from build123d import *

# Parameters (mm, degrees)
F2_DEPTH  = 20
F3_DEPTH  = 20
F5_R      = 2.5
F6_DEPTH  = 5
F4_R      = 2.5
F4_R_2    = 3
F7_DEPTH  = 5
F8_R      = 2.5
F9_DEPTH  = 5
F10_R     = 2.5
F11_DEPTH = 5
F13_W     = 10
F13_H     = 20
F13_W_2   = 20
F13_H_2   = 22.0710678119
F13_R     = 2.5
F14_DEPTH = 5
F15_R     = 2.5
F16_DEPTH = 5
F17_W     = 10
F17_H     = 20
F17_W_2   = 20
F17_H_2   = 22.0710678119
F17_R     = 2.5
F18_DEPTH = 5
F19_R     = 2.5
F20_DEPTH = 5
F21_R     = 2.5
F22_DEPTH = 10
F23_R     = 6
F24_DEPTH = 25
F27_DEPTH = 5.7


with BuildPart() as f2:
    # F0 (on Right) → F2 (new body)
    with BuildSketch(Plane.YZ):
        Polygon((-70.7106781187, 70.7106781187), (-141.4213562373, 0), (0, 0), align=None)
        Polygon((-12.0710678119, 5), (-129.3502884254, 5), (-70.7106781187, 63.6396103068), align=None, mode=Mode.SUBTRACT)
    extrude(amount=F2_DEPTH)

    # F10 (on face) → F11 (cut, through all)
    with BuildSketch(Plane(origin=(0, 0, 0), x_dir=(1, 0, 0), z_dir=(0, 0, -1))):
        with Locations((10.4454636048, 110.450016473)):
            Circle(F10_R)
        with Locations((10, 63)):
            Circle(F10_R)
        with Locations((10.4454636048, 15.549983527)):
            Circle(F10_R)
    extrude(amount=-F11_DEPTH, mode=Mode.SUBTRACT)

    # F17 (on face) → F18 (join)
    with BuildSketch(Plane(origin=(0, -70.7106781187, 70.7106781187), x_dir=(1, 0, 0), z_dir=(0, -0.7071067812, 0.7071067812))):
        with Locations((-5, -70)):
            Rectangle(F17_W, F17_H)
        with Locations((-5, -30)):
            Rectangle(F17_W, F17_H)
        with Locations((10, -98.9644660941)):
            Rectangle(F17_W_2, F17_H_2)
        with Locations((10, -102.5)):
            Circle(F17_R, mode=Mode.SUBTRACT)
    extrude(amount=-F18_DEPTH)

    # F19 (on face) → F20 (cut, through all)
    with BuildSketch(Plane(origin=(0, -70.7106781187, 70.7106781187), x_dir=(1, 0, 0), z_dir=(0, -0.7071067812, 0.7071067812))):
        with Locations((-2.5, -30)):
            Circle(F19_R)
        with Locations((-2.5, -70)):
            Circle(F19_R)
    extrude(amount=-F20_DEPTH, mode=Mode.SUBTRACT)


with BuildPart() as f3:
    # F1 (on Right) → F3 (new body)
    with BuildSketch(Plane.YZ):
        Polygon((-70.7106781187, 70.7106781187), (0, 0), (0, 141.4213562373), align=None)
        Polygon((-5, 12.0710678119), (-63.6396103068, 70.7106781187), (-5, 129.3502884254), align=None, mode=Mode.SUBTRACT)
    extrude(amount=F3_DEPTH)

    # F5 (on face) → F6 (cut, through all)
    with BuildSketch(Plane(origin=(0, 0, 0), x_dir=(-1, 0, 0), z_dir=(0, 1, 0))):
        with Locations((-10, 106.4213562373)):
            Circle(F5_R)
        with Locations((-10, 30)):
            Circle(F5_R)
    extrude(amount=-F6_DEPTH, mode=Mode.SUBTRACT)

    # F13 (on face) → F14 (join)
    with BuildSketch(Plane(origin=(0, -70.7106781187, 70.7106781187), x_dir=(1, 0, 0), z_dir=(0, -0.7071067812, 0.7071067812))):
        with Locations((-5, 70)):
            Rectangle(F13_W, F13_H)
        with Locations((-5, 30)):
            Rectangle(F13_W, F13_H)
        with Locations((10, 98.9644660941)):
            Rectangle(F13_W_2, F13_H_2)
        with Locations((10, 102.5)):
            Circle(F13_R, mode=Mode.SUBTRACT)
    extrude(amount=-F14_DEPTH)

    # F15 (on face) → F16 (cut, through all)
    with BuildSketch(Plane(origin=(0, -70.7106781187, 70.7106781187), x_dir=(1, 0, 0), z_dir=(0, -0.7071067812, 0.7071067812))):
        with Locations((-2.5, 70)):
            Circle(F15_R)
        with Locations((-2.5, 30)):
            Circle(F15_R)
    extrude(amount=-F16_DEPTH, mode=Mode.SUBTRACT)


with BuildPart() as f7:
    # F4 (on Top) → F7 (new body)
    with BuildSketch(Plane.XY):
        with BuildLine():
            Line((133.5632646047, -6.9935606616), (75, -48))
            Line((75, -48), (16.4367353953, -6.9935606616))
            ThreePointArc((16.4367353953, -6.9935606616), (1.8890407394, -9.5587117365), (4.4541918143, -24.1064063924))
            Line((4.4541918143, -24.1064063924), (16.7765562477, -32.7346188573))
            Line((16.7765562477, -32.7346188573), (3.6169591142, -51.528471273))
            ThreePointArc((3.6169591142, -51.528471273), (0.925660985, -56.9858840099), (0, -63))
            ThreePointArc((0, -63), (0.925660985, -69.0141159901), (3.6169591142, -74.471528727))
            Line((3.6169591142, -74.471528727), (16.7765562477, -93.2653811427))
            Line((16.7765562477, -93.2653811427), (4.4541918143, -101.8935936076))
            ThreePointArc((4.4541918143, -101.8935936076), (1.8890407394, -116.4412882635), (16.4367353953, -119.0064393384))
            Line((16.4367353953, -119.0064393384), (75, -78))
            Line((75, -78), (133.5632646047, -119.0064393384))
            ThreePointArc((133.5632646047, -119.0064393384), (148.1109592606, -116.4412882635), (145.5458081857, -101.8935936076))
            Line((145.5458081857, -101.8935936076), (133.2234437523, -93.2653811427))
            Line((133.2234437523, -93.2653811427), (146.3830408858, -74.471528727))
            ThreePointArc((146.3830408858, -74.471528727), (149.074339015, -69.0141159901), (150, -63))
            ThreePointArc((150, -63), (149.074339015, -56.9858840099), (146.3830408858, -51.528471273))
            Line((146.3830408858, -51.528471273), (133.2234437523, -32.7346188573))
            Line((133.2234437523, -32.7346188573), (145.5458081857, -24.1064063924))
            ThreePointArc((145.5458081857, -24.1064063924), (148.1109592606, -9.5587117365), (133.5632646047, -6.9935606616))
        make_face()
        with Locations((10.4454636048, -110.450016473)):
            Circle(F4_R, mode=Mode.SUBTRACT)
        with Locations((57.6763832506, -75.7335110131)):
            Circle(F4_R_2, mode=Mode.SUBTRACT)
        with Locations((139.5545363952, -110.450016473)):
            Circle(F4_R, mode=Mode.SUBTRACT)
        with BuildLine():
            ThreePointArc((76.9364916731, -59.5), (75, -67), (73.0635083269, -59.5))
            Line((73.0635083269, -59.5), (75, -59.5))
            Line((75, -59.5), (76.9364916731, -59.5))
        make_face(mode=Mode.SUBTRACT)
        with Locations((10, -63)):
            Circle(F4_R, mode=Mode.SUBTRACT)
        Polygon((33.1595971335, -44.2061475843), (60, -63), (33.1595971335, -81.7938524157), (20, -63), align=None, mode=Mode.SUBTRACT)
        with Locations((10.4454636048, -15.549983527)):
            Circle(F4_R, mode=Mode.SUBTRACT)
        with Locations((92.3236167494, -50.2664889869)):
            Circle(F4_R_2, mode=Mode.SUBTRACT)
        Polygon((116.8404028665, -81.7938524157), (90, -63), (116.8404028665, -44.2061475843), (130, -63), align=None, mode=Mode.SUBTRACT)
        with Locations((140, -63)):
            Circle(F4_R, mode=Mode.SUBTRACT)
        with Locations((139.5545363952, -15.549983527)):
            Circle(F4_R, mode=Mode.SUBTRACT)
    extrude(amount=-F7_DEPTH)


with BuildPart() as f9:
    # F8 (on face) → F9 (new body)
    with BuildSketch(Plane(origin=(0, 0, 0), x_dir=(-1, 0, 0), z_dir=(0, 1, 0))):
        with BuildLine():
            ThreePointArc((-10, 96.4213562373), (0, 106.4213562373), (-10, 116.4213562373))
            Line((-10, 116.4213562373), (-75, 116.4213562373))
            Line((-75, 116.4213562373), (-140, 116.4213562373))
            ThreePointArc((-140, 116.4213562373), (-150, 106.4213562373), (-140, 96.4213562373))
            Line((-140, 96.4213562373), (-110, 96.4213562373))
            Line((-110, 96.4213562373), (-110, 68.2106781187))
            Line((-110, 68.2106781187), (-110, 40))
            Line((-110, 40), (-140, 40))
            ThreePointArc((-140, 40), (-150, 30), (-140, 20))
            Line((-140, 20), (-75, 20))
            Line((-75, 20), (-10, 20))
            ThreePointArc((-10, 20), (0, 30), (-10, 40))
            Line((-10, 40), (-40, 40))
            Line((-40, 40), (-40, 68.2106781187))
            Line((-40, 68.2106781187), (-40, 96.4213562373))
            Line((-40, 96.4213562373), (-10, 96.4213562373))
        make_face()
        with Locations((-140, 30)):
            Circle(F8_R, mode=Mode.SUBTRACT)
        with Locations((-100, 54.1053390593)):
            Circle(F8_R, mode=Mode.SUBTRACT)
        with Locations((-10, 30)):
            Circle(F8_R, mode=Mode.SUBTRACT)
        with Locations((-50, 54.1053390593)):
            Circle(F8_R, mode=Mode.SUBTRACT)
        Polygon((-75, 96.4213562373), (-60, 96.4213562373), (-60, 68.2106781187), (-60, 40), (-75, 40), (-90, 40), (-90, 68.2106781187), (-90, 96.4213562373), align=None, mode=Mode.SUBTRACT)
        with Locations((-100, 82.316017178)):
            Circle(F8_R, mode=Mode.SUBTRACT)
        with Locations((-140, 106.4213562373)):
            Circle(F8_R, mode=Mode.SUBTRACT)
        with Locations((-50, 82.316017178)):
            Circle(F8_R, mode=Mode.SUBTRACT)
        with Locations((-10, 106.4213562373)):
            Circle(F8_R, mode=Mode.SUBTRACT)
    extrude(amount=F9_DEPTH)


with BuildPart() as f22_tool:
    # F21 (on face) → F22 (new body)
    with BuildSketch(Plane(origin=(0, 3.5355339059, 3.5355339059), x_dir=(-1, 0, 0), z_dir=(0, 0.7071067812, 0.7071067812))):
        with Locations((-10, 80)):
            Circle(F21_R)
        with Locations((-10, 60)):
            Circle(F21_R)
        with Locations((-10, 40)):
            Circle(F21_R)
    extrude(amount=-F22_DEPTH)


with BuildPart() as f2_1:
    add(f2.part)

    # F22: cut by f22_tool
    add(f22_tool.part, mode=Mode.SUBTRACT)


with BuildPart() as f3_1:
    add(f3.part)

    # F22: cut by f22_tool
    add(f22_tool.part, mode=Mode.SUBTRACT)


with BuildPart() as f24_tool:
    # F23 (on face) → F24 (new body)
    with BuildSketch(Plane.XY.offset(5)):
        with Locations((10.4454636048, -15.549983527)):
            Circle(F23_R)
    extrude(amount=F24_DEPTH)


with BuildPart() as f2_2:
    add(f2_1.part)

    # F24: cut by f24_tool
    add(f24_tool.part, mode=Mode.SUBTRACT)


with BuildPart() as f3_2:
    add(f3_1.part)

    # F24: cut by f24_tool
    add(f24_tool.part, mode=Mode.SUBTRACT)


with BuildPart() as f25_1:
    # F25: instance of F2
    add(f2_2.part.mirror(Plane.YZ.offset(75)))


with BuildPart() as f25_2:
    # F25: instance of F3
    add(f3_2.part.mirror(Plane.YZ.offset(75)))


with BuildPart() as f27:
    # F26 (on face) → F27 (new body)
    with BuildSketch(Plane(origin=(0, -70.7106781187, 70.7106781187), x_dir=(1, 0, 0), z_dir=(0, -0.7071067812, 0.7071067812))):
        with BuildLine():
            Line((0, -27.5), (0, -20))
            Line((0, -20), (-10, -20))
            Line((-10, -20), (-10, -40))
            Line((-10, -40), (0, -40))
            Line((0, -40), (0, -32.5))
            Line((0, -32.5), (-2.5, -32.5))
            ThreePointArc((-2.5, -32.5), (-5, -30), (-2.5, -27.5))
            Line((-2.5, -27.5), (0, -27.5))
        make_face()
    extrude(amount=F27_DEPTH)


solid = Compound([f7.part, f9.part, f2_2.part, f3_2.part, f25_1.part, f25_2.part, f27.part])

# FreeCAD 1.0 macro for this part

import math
import FreeCAD as App
import Part
import Sketcher
Q = App.Units.Quantity


def add_polygon(sketch, points):
    """Adds a closed chain of lines whose ends are joined by coincident constraints."""
    first, n = sketch.GeometryCount, len(points)
    for a, b in zip(points, points[1:] + points[:1]):
        sketch.addGeometry(Part.LineSegment(App.Vector(*a, 0), App.Vector(*b, 0)), False)
    for i in range(n):
        sketch.addConstraint(Sketcher.Constraint("Coincident", first + i, 2, first + (i + 1) % n, 1))

doc = App.newDocument("Part")
body = doc.addObject("PartDesign::Body", "Body")

# Sketch on YZ plane
sketch1 = body.newObject("Sketcher::SketchObject", "Sketch")
sketch1.AttachmentSupport = (doc.getObject("YZ_Plane"), [""])
sketch1.MapMode = "FlatFace"
add_polygon(sketch1, [(-71, 71), (-141, 0), (0, 0)])  # lines 0-2
add_polygon(sketch1, [(-71, 64), (-12, 5), (-129, 5)])  # lines 3-5
sketch1.addConstraint([
    Sketcher.Constraint("Horizontal", 1),
    Sketcher.Constraint("Horizontal", 4),
    Sketcher.Constraint("Coincident", 1, 2, -1, 1),
    Sketcher.Constraint("Perpendicular", 0, 2),
    Sketcher.Constraint("Parallel", 2, 3),
    Sketcher.Constraint("Perpendicular", 3, 5),
    Sketcher.Constraint("Vertical", 2, 2, 5, 2),
    Sketcher.Constraint("Equal", 0, 2),
    Sketcher.Constraint("Distance", 0, Q("100 mm")),
    Sketcher.Constraint("DistanceY", -1, 1, 3, 2, Q("5 mm")),
    Sketcher.Constraint("DistanceX", 4, 2, 4, 1, Q("117.279221 mm")),
])
pad1 = body.newObject("PartDesign::Pad", "Pad")
pad1.Profile = sketch1
pad1.Length = 20

# Sketch on XY plane
sketch2 = body.newObject("Sketcher::SketchObject", "Sketch001")
sketch2.AttachmentSupport = (doc.getObject("XY_Plane"), [""])
sketch2.MapMode = "FlatFace"
sketch2.addGeometry([
    Part.Circle(App.Vector(10.4, -110.5, 0), App.Vector(0, 0, 1), 2.5),
    Part.Circle(App.Vector(10, -63, 0), App.Vector(0, 0, 1), 2.5),
    Part.Circle(App.Vector(10.4, -15.5, 0), App.Vector(0, 0, 1), 2.5),
], False)
sketch2.addConstraint([
    Sketcher.Constraint("Equal", 0, 1),
    Sketcher.Constraint("Equal", 1, 2),
    Sketcher.Constraint("Vertical", 0, 3, 2, 3),
    Sketcher.Constraint("Diameter", 0, Q("5 mm")),
    Sketcher.Constraint("DistanceX", -1, 1, 1, 3, Q("10 mm")),
    Sketcher.Constraint("DistanceY", 1, 3, -1, 1, Q("63 mm")),
    Sketcher.Constraint("DistanceX", -1, 1, 0, 3, Q("10.445464 mm")),
    Sketcher.Constraint("DistanceY", 0, 3, -1, 1, Q("110.450016 mm")),
    Sketcher.Constraint("DistanceY", 2, 3, -1, 1, Q("15.549984 mm")),
])
pocket1 = body.newObject("PartDesign::Pocket", "Pocket")
pocket1.Profile = sketch2
pocket1.Length = 5
pocket1.Reversed = True

# Sketch on an angled plane
sketch3 = body.newObject("Sketcher::SketchObject", "Sketch002")
sketch3.Placement = App.Placement(App.Vector(0, -70.710678, 70.710678), App.Rotation(App.Vector(1, 0, 0), App.Vector(0, 0.707106781, 0.707106781), App.Vector(0, -0.707106781, 0.707106781), "ZXY"))
add_polygon(sketch3, [(-10, -60), (-10, -80), (0, -80), (0, -60)])  # lines 0-3
add_polygon(sketch3, [(-10, -20), (-10, -40), (0, -40), (0, -20)])  # lines 4-7
add_polygon(sketch3, [(0, -87.9), (0, -110), (20, -110), (20, -87.9)])  # lines 8-11
sketch3.addGeometry(Part.Circle(App.Vector(10, -102.5, 0), App.Vector(0, 0, 1), 2.5), False)  # 12
sketch3.addConstraint([
    Sketcher.Constraint("Vertical", 0),
    Sketcher.Constraint("Horizontal", 1),
    Sketcher.Constraint("Vertical", 2),
    Sketcher.Constraint("Horizontal", 3),
    Sketcher.Constraint("Vertical", 4),
    Sketcher.Constraint("Horizontal", 5),
    Sketcher.Constraint("Vertical", 6),
    Sketcher.Constraint("Horizontal", 7),
    Sketcher.Constraint("Vertical", 8),
    Sketcher.Constraint("Horizontal", 9),
    Sketcher.Constraint("Vertical", 10),
    Sketcher.Constraint("Horizontal", 11),
    Sketcher.Constraint("PointOnObject", 1, 2, -2),
    Sketcher.Constraint("PointOnObject", 5, 2, -2),
    Sketcher.Constraint("PointOnObject", 8, 2, -2),
    Sketcher.Constraint("Vertical", 3, 2, 4, 2),
    Sketcher.Constraint("Equal", 11, 0),
    Sketcher.Constraint("Equal", 2, 4),
    Sketcher.Constraint("Diameter", 12, Q("5 mm")),
    Sketcher.Constraint("DistanceX", 1, 1, 1, 2, Q("10 mm")),
    Sketcher.Constraint("DistanceX", 9, 1, 9, 2, Q("20 mm")),
    Sketcher.Constraint("DistanceX", -1, 1, 12, 3, Q("10 mm")),
    Sketcher.Constraint("DistanceY", 0, 2, -1, 1, Q("80 mm")),
    Sketcher.Constraint("DistanceY", 4, 2, -1, 1, Q("40 mm")),
    Sketcher.Constraint("DistanceY", 8, 2, -1, 1, Q("110 mm")),
    Sketcher.Constraint("DistanceY", 12, 3, -1, 1, Q("102.5 mm")),
    Sketcher.Constraint("DistanceY", 8, 2, 8, 1, Q("22.071068 mm")),
])
pad2 = body.newObject("PartDesign::Pad", "Pad001")
pad2.Profile = sketch3
pad2.Length = 5
pad2.Reversed = True

# Sketch on an angled plane
sketch4 = body.newObject("Sketcher::SketchObject", "Sketch003")
sketch4.Placement = App.Placement(App.Vector(0, -70.710678, 70.710678), App.Rotation(App.Vector(1, 0, 0), App.Vector(0, 0.707106781, 0.707106781), App.Vector(0, -0.707106781, 0.707106781), "ZXY"))
sketch4.addGeometry([
    Part.Circle(App.Vector(-2.5, -30, 0), App.Vector(0, 0, 1), 2.5),
    Part.Circle(App.Vector(-2.5, -70, 0), App.Vector(0, 0, 1), 2.5),
], False)
sketch4.addConstraint([
    Sketcher.Constraint("Equal", 0, 1),
    Sketcher.Constraint("Vertical", 0, 3, 1, 3),
    Sketcher.Constraint("Diameter", 0, Q("5 mm")),
    Sketcher.Constraint("DistanceY", 0, 3, -1, 1, Q("30 mm")),
    Sketcher.Constraint("DistanceY", 1, 3, -1, 1, Q("70 mm")),
    Sketcher.Constraint("DistanceX", 0, 3, -1, 1, Q("2.5 mm")),
])
pocket2 = body.newObject("PartDesign::Pocket", "Pocket001")
pocket2.Profile = sketch4
pocket2.Type = "ThroughAll"
body2 = doc.addObject("PartDesign::Body", "Body001")

# Sketch on YZ plane
sketch5 = body2.newObject("Sketcher::SketchObject", "Sketch004")
sketch5.AttachmentSupport = (doc.getObject("YZ_Plane001"), [""])
sketch5.MapMode = "FlatFace"
add_polygon(sketch5, [(-71, 71), (0, 0), (0, 141)])  # lines 0-2
add_polygon(sketch5, [(-5, 129), (-5, 12), (-64, 71)])  # lines 3-5
sketch5.addConstraint([
    Sketcher.Constraint("Vertical", 1),
    Sketcher.Constraint("Vertical", 3),
    Sketcher.Constraint("Coincident", 0, 2, -1, 1),
    Sketcher.Constraint("Perpendicular", 0, 2),
    Sketcher.Constraint("Perpendicular", 2, 4),
    Sketcher.Constraint("Perpendicular", 4, 5),
    Sketcher.Constraint("Horizontal", 2, 2, 4, 2),
    Sketcher.Constraint("Equal", 0, 2),
    Sketcher.Constraint("Distance", 0, Q("100 mm")),
    Sketcher.Constraint("DistanceX", 3, 2, -1, 1, Q("5 mm")),
    Sketcher.Constraint("DistanceY", 3, 2, 3, 1, Q("117.279221 mm")),
])
pad3 = body2.newObject("PartDesign::Pad", "Pad002")
pad3.Profile = sketch5
pad3.Length = 20

# Sketch on XZ plane
sketch6 = body2.newObject("Sketcher::SketchObject", "Sketch005")
sketch6.AttachmentSupport = (doc.getObject("XZ_Plane001"), [""])
sketch6.MapMode = "FlatFace"
sketch6.addGeometry([
    Part.Circle(App.Vector(10, 106.4, 0), App.Vector(0, 0, 1), 2.5),
    Part.Circle(App.Vector(10, 30, 0), App.Vector(0, 0, 1), 2.5),
], False)
sketch6.addConstraint([
    Sketcher.Constraint("Equal", 0, 1),
    Sketcher.Constraint("Vertical", 0, 3, 1, 3),
    Sketcher.Constraint("Diameter", 0, Q("5 mm")),
    Sketcher.Constraint("DistanceX", -1, 1, 0, 3, Q("10 mm")),
    Sketcher.Constraint("DistanceY", -1, 1, 1, 3, Q("30 mm")),
    Sketcher.Constraint("DistanceY", -1, 1, 0, 3, Q("106.421356 mm")),
])
pocket3 = body2.newObject("PartDesign::Pocket", "Pocket002")
pocket3.Profile = sketch6
pocket3.Length = 5
pocket3.Reversed = True

# Sketch on an angled plane
sketch7 = body2.newObject("Sketcher::SketchObject", "Sketch006")
sketch7.Placement = App.Placement(App.Vector(0, -70.710678, 70.710678), App.Rotation(App.Vector(1, 0, 0), App.Vector(0, 0.707106781, 0.707106781), App.Vector(0, -0.707106781, 0.707106781), "ZXY"))
add_polygon(sketch7, [(-10, 80), (-10, 60), (0, 60), (0, 80)])  # lines 0-3
add_polygon(sketch7, [(-10, 40), (-10, 20), (0, 20), (0, 40)])  # lines 4-7
add_polygon(sketch7, [(0, 110), (0, 87.9), (20, 87.9), (20, 110)])  # lines 8-11
sketch7.addGeometry(Part.Circle(App.Vector(10, 102.5, 0), App.Vector(0, 0, 1), 2.5), False)  # 12
sketch7.addConstraint([
    Sketcher.Constraint("Vertical", 0),
    Sketcher.Constraint("Horizontal", 1),
    Sketcher.Constraint("Vertical", 2),
    Sketcher.Constraint("Horizontal", 3),
    Sketcher.Constraint("Vertical", 4),
    Sketcher.Constraint("Horizontal", 5),
    Sketcher.Constraint("Vertical", 6),
    Sketcher.Constraint("Horizontal", 7),
    Sketcher.Constraint("Vertical", 8),
    Sketcher.Constraint("Horizontal", 9),
    Sketcher.Constraint("Vertical", 10),
    Sketcher.Constraint("Horizontal", 11),
    Sketcher.Constraint("PointOnObject", 1, 2, -2),
    Sketcher.Constraint("PointOnObject", 5, 2, -2),
    Sketcher.Constraint("PointOnObject", 8, 2, -2),
    Sketcher.Constraint("Vertical", 3, 2, 4, 2),
    Sketcher.Constraint("Equal", 11, 0),
    Sketcher.Constraint("Equal", 2, 4),
    Sketcher.Constraint("Diameter", 12, Q("5 mm")),
    Sketcher.Constraint("DistanceX", 1, 1, 1, 2, Q("10 mm")),
    Sketcher.Constraint("DistanceX", 9, 1, 9, 2, Q("20 mm")),
    Sketcher.Constraint("DistanceX", -1, 1, 12, 3, Q("10 mm")),
    Sketcher.Constraint("DistanceY", -1, 1, 0, 2, Q("60 mm")),
    Sketcher.Constraint("DistanceY", -1, 1, 4, 2, Q("20 mm")),
    Sketcher.Constraint("DistanceY", -1, 1, 10, 2, Q("110 mm")),
    Sketcher.Constraint("DistanceY", -1, 1, 12, 3, Q("102.5 mm")),
    Sketcher.Constraint("DistanceY", 8, 2, 8, 1, Q("22.071068 mm")),
])
pad4 = body2.newObject("PartDesign::Pad", "Pad003")
pad4.Profile = sketch7
pad4.Length = 5
pad4.Reversed = True

# Sketch on an angled plane
sketch8 = body2.newObject("Sketcher::SketchObject", "Sketch007")
sketch8.Placement = App.Placement(App.Vector(0, -70.710678, 70.710678), App.Rotation(App.Vector(1, 0, 0), App.Vector(0, 0.707106781, 0.707106781), App.Vector(0, -0.707106781, 0.707106781), "ZXY"))
sketch8.addGeometry([
    Part.Circle(App.Vector(-2.5, 70, 0), App.Vector(0, 0, 1), 2.5),
    Part.Circle(App.Vector(-2.5, 30, 0), App.Vector(0, 0, 1), 2.5),
], False)
sketch8.addConstraint([
    Sketcher.Constraint("Equal", 0, 1),
    Sketcher.Constraint("Vertical", 0, 3, 1, 3),
    Sketcher.Constraint("Diameter", 0, Q("5 mm")),
    Sketcher.Constraint("DistanceY", -1, 1, 0, 3, Q("70 mm")),
    Sketcher.Constraint("DistanceY", -1, 1, 1, 3, Q("30 mm")),
    Sketcher.Constraint("DistanceX", 0, 3, -1, 1, Q("2.5 mm")),
])
pocket4 = body2.newObject("PartDesign::Pocket", "Pocket003")
pocket4.Profile = sketch8
pocket4.Type = "ThroughAll"
body3 = doc.addObject("PartDesign::Body", "Body002")

# Sketch on XY plane
sketch9 = body3.newObject("Sketcher::SketchObject", "Sketch008")
sketch9.AttachmentSupport = (doc.getObject("XY_Plane002"), [""])
sketch9.MapMode = "FlatFace"
sketch9.addGeometry(Part.LineSegment(App.Vector(133.6, -7, 0), App.Vector(75, -48, 0)), False)  # 0
sketch9.addGeometry(Part.LineSegment(App.Vector(75, -48, 0), App.Vector(16.4, -7, 0)), False)  # 1
sketch9.addGeometry(Part.ArcOfCircle(Part.Circle(App.Vector(10.4, -15.5, 0), App.Vector(0, 0, 1), 10.4), math.radians(55), math.radians(235)), False)  # 2
sketch9.addGeometry(Part.LineSegment(App.Vector(4.5, -24.1, 0), App.Vector(16.8, -32.7, 0)), False)  # 3
sketch9.addGeometry(Part.LineSegment(App.Vector(16.8, -32.7, 0), App.Vector(3.6, -51.5, 0)), False)  # 4
sketch9.addGeometry(Part.ArcOfCircle(Part.Circle(App.Vector(20, -63, 0), App.Vector(0, 0, 1), 20), math.radians(145), math.radians(180)), False)  # 5
sketch9.addGeometry(Part.ArcOfCircle(Part.Circle(App.Vector(20, -63, 0), App.Vector(0, 0, 1), 20), math.radians(180), math.radians(215)), False)  # 6
sketch9.addGeometry(Part.LineSegment(App.Vector(3.6, -74.5, 0), App.Vector(16.8, -93.3, 0)), False)  # 7
sketch9.addGeometry(Part.LineSegment(App.Vector(16.8, -93.3, 0), App.Vector(4.5, -101.9, 0)), False)  # 8
sketch9.addGeometry(Part.ArcOfCircle(Part.Circle(App.Vector(10.4, -110.5, 0), App.Vector(0, 0, 1), 10.4), math.radians(125), math.radians(305)), False)  # 9
sketch9.addGeometry(Part.LineSegment(App.Vector(16.4, -119, 0), App.Vector(75, -78, 0)), False)  # 10
sketch9.addGeometry(Part.LineSegment(App.Vector(75, -78, 0), App.Vector(133.6, -119, 0)), False)  # 11
sketch9.addGeometry(Part.ArcOfCircle(Part.Circle(App.Vector(139.6, -110.5, 0), App.Vector(0, 0, 1), 10.4), math.radians(-125), math.radians(55)), False)  # 12
sketch9.addGeometry(Part.LineSegment(App.Vector(145.5, -101.9, 0), App.Vector(133.2, -93.3, 0)), False)  # 13
sketch9.addGeometry(Part.LineSegment(App.Vector(133.2, -93.3, 0), App.Vector(146.4, -74.5, 0)), False)  # 14
sketch9.addGeometry(Part.ArcOfCircle(Part.Circle(App.Vector(130, -63, 0), App.Vector(0, 0, 1), 20), math.radians(-35), math.radians(0)), False)  # 15
sketch9.addGeometry(Part.ArcOfCircle(Part.Circle(App.Vector(130, -63, 0), App.Vector(0, 0, 1), 20), math.radians(0), math.radians(35)), False)  # 16
sketch9.addGeometry(Part.LineSegment(App.Vector(146.4, -51.5, 0), App.Vector(133.2, -32.7, 0)), False)  # 17
sketch9.addGeometry(Part.LineSegment(App.Vector(133.2, -32.7, 0), App.Vector(145.5, -24.1, 0)), False)  # 18
sketch9.addGeometry(Part.ArcOfCircle(Part.Circle(App.Vector(139.6, -15.5, 0), App.Vector(0, 0, 1), 10.4), math.radians(-55), math.radians(125)), False)  # 19
sketch9.addGeometry(Part.Circle(App.Vector(10.4, -110.5, 0), App.Vector(0, 0, 1), 2.5), False)  # 20
sketch9.addGeometry(Part.Circle(App.Vector(57.7, -75.7, 0), App.Vector(0, 0, 1), 3), False)  # 21
sketch9.addGeometry(Part.Circle(App.Vector(139.6, -110.5, 0), App.Vector(0, 0, 1), 2.5), False)  # 22
sketch9.addGeometry(Part.LineSegment(App.Vector(73.1, -59.5, 0), App.Vector(76.9, -59.5, 0)), False)  # 23
sketch9.addGeometry(Part.ArcOfCircle(Part.Circle(App.Vector(75, -63, 0), App.Vector(0, 0, 1), 4), math.radians(119), math.radians(421)), False)  # 24
sketch9.addGeometry(Part.Circle(App.Vector(10, -63, 0), App.Vector(0, 0, 1), 2.5), False)  # 25
add_polygon(sketch9, [(20, -63), (33.2, -44.2), (60, -63), (33.2, -81.8)])  # lines 26-29
sketch9.addGeometry(Part.Circle(App.Vector(10.4, -15.5, 0), App.Vector(0, 0, 1), 2.5), False)  # 30
sketch9.addGeometry(Part.Circle(App.Vector(92.3, -50.3, 0), App.Vector(0, 0, 1), 3), False)  # 31
add_polygon(sketch9, [(130, -63), (116.8, -81.8), (90, -63), (116.8, -44.2)])  # lines 32-35
sketch9.addGeometry(Part.Circle(App.Vector(140, -63, 0), App.Vector(0, 0, 1), 2.5), False)  # 36
sketch9.addGeometry(Part.Circle(App.Vector(139.6, -15.5, 0), App.Vector(0, 0, 1), 2.5), False)  # 37
sketch9.addConstraint([
    Sketcher.Constraint("Coincident", 0, 2, 1, 1),
    Sketcher.Constraint("Tangent", 1, 2, 2, 1),
    Sketcher.Constraint("Tangent", 2, 2, 3, 1),
    Sketcher.Constraint("Coincident", 3, 2, 4, 1),
    Sketcher.Constraint("Tangent", 4, 2, 5, 1),
    Sketcher.Constraint("Tangent", 5, 2, 6, 1),
    Sketcher.Constraint("Tangent", 6, 2, 7, 1),
    Sketcher.Constraint("Coincident", 7, 2, 8, 1),
    Sketcher.Constraint("Tangent", 8, 2, 9, 1),
    Sketcher.Constraint("Tangent", 9, 2, 10, 1),
    Sketcher.Constraint("Coincident", 10, 2, 11, 1),
    Sketcher.Constraint("Tangent", 11, 2, 12, 1),
    Sketcher.Constraint("Tangent", 12, 2, 13, 1),
    Sketcher.Constraint("Coincident", 13, 2, 14, 1),
    Sketcher.Constraint("Tangent", 14, 2, 15, 1),
    Sketcher.Constraint("Tangent", 15, 2, 16, 1),
    Sketcher.Constraint("Tangent", 16, 2, 17, 1),
    Sketcher.Constraint("Coincident", 17, 2, 18, 1),
    Sketcher.Constraint("Tangent", 18, 2, 19, 1),
    Sketcher.Constraint("Tangent", 19, 2, 0, 1),
    Sketcher.Constraint("Coincident", 23, 1, 24, 1),
    Sketcher.Constraint("Coincident", 24, 2, 23, 2),
    Sketcher.Constraint("Horizontal", 23),
    Sketcher.Constraint("Coincident", 20, 3, 9, 3),
    Sketcher.Constraint("Coincident", 22, 3, 12, 3),
    Sketcher.Constraint("Coincident", 30, 3, 2, 3),
    Sketcher.Constraint("Coincident", 37, 3, 19, 3),
    Sketcher.Constraint("Coincident", 29, 2, 5, 3),
    Sketcher.Constraint("Coincident", 35, 2, 15, 3),
    Sketcher.Constraint("Equal", 5, 6),
    Sketcher.Constraint("Equal", 2, 9),
    Sketcher.Constraint("Equal", 9, 12),
    Sketcher.Constraint("Equal", 6, 15),
    Sketcher.Constraint("Equal", 15, 16),
    Sketcher.Constraint("Equal", 12, 19),
    Sketcher.Constraint("Equal", 20, 22),
    Sketcher.Constraint("Equal", 22, 25),
    Sketcher.Constraint("Equal", 25, 30),
    Sketcher.Constraint("Equal", 21, 31),
    Sketcher.Constraint("Equal", 30, 36),
    Sketcher.Constraint("Equal", 36, 37),
    Sketcher.Constraint("PointOnObject", 5, 2, -2),
    Sketcher.Constraint("Parallel", 1, 3),
    Sketcher.Constraint("Perpendicular", 3, 4),
    Sketcher.Constraint("Perpendicular", 0, 7),
    Sketcher.Constraint("Perpendicular", 7, 8),
    Sketcher.Constraint("Parallel", 8, 10),
    Sketcher.Constraint("Perpendicular", 4, 11),
    Sketcher.Constraint("Parallel", 11, 13),
    Sketcher.Constraint("Perpendicular", 13, 14),
    Sketcher.Constraint("Perpendicular", 10, 17),
    Sketcher.Constraint("Perpendicular", 17, 18),
    Sketcher.Constraint("Parallel", 14, 26),
    Sketcher.Constraint("Perpendicular", 26, 27),
    Sketcher.Constraint("Parallel", 18, 28),
    Sketcher.Constraint("Perpendicular", 28, 29),
    Sketcher.Constraint("Perpendicular", 27, 32),
    Sketcher.Constraint("Perpendicular", 32, 33),
    Sketcher.Constraint("Perpendicular", 29, 34),
    Sketcher.Constraint("Perpendicular", 34, 35),
    Sketcher.Constraint("Horizontal", 9, 3, 12, 3),
    Sketcher.Constraint("Horizontal", 6, 3, 15, 3),
    Sketcher.Constraint("Horizontal", 2, 3, 19, 3),
    Sketcher.Constraint("Horizontal", 16, 3, 24, 3),
    Sketcher.Constraint("Horizontal", 24, 3, 25, 3),
    Sketcher.Constraint("Horizontal", 25, 3, 36, 3),
    Sketcher.Constraint("Horizontal", 36, 3, 5, 2),
    Sketcher.Constraint("Horizontal", 9, 2, 11, 2),
    Sketcher.Constraint("Horizontal", 7, 2, 13, 2),
    Sketcher.Constraint("Horizontal", 5, 2, 15, 2),
    Sketcher.Constraint("Horizontal", 3, 2, 17, 2),
    Sketcher.Constraint("Horizontal", 15, 2, 27, 2),
    Sketcher.Constraint("Horizontal", 28, 2, 32, 2),
    Sketcher.Constraint("Horizontal", 29, 2, 33, 2),
    Sketcher.Constraint("Vertical", 2, 3, 9, 3),
    Sketcher.Constraint("Vertical", 24, 3, 0, 2),
    Sketcher.Constraint("Vertical", 3, 2, 7, 2),
    Sketcher.Constraint("Equal", 17, 26),
    Sketcher.Constraint("Diameter", 20, Q("5 mm")),
    Sketcher.Constraint("Diameter", 21, Q("6 mm")),
    Sketcher.Constraint("Radius", 5, Q("20 mm")),
    Sketcher.Constraint("Radius", 24, Q("4 mm")),
    Sketcher.Constraint("Angle", 0, Q("-145 deg")),
    Sketcher.Constraint("DistanceY", 5, 3, -1, 1, Q("63 mm")),
    Sketcher.Constraint("DistanceX", -1, 1, 15, 3, Q("130 mm")),
    Sketcher.Constraint("DistanceX", -1, 1, 25, 3, Q("10 mm")),
    Sketcher.Constraint("DistanceX", -1, 1, 36, 3, Q("140 mm")),
    Sketcher.Constraint("DistanceY", 0, 2, -1, 1, Q("48 mm")),
    Sketcher.Constraint("DistanceX", -1, 1, 27, 2, Q("60 mm")),
    Sketcher.Constraint("DistanceY", 23, 1, -1, 1, Q("59.5 mm")),
    Sketcher.Constraint("Distance", 3, Q("15.042829 mm")),
    Sketcher.Constraint("DistanceY", 21, 3, -1, 1, Q("75.733511 mm")),
    Sketcher.Constraint("DistanceY", 31, 3, -1, 1, Q("50.266489 mm")),
    Sketcher.Constraint("DistanceX", 9, 3, 21, 3, Q("47.23092 mm")),
    Sketcher.Constraint("DistanceX", 31, 3, 19, 3, Q("47.23092 mm")),
])
pad5 = body3.newObject("PartDesign::Pad", "Pad004")
pad5.Profile = sketch9
pad5.Length = 5
pad5.Reversed = True
body4 = doc.addObject("PartDesign::Body", "Body003")

# Sketch on XZ plane
sketch10 = body4.newObject("Sketcher::SketchObject", "Sketch009")
sketch10.AttachmentSupport = (doc.getObject("XZ_Plane003"), [""])
sketch10.MapMode = "FlatFace"
sketch10.addGeometry(Part.ArcOfCircle(Part.Circle(App.Vector(10, 106.4, 0), App.Vector(0, 0, 1), 10), math.radians(90), math.radians(270)), False)  # 0
sketch10.addGeometry(Part.LineSegment(App.Vector(10, 116.4, 0), App.Vector(140, 116.4, 0)), False)  # 1
sketch10.addGeometry(Part.ArcOfCircle(Part.Circle(App.Vector(140, 106.4, 0), App.Vector(0, 0, 1), 10), math.radians(-90), math.radians(90)), False)  # 2
sketch10.addGeometry(Part.LineSegment(App.Vector(140, 96.4, 0), App.Vector(110, 96.4, 0)), False)  # 3
sketch10.addGeometry(Part.LineSegment(App.Vector(110, 96.4, 0), App.Vector(110, 40, 0)), False)  # 4
sketch10.addGeometry(Part.LineSegment(App.Vector(110, 40, 0), App.Vector(140, 40, 0)), False)  # 5
sketch10.addGeometry(Part.ArcOfCircle(Part.Circle(App.Vector(140, 30, 0), App.Vector(0, 0, 1), 10), math.radians(-90), math.radians(90)), False)  # 6
sketch10.addGeometry(Part.LineSegment(App.Vector(140, 20, 0), App.Vector(10, 20, 0)), False)  # 7
sketch10.addGeometry(Part.ArcOfCircle(Part.Circle(App.Vector(10, 30, 0), App.Vector(0, 0, 1), 10), math.radians(90), math.radians(270)), False)  # 8
sketch10.addGeometry(Part.LineSegment(App.Vector(10, 40, 0), App.Vector(40, 40, 0)), False)  # 9
sketch10.addGeometry(Part.LineSegment(App.Vector(40, 40, 0), App.Vector(40, 96.4, 0)), False)  # 10
sketch10.addGeometry(Part.LineSegment(App.Vector(40, 96.4, 0), App.Vector(10, 96.4, 0)), False)  # 11
sketch10.addGeometry(Part.Circle(App.Vector(140, 30, 0), App.Vector(0, 0, 1), 2.5), False)  # 12
sketch10.addGeometry(Part.Circle(App.Vector(100, 54.1, 0), App.Vector(0, 0, 1), 2.5), False)  # 13
sketch10.addGeometry(Part.Circle(App.Vector(10, 30, 0), App.Vector(0, 0, 1), 2.5), False)  # 14
sketch10.addGeometry(Part.Circle(App.Vector(50, 54.1, 0), App.Vector(0, 0, 1), 2.5), False)  # 15
sketch10.addGeometry(Part.Circle(App.Vector(100, 82.3, 0), App.Vector(0, 0, 1), 2.5), False)  # 16
sketch10.addGeometry(Part.Circle(App.Vector(140, 106.4, 0), App.Vector(0, 0, 1), 2.5), False)  # 17
add_polygon(sketch10, [(90, 96.4), (60, 96.4), (60, 40), (90, 40)])  # lines 18-21
sketch10.addGeometry(Part.Circle(App.Vector(50, 82.3, 0), App.Vector(0, 0, 1), 2.5), False)  # 22
sketch10.addGeometry(Part.Circle(App.Vector(10, 106.4, 0), App.Vector(0, 0, 1), 2.5), False)  # 23
sketch10.addConstraint([
    Sketcher.Constraint("Tangent", 0, 1, 1, 1),
    Sketcher.Constraint("Tangent", 1, 2, 2, 2),
    Sketcher.Constraint("Tangent", 2, 1, 3, 1),
    Sketcher.Constraint("Coincident", 3, 2, 4, 1),
    Sketcher.Constraint("Coincident", 4, 2, 5, 1),
    Sketcher.Constraint("Tangent", 5, 2, 6, 2),
    Sketcher.Constraint("Tangent", 6, 1, 7, 1),
    Sketcher.Constraint("Tangent", 7, 2, 8, 2),
    Sketcher.Constraint("Tangent", 8, 1, 9, 1),
    Sketcher.Constraint("Coincident", 9, 2, 10, 1),
    Sketcher.Constraint("Coincident", 10, 2, 11, 1),
    Sketcher.Constraint("Tangent", 11, 2, 0, 2),
    Sketcher.Constraint("Horizontal", 1),
    Sketcher.Constraint("Horizontal", 3),
    Sketcher.Constraint("Vertical", 4),
    Sketcher.Constraint("Horizontal", 5),
    Sketcher.Constraint("Horizontal", 7),
    Sketcher.Constraint("Horizontal", 9),
    Sketcher.Constraint("Vertical", 10),
    Sketcher.Constraint("Horizontal", 11),
    Sketcher.Constraint("Horizontal", 18),
    Sketcher.Constraint("Vertical", 19),
    Sketcher.Constraint("Horizontal", 20),
    Sketcher.Constraint("Vertical", 21),
    Sketcher.Constraint("Coincident", 12, 3, 6, 3),
    Sketcher.Constraint("Coincident", 14, 3, 8, 3),
    Sketcher.Constraint("Coincident", 17, 3, 2, 3),
    Sketcher.Constraint("Coincident", 23, 3, 0, 3),
    Sketcher.Constraint("Equal", 0, 2),
    Sketcher.Constraint("Equal", 2, 6),
    Sketcher.Constraint("Equal", 6, 8),
    Sketcher.Constraint("Equal", 12, 13),
    Sketcher.Constraint("Equal", 13, 14),
    Sketcher.Constraint("Equal", 14, 15),
    Sketcher.Constraint("Equal", 15, 16),
    Sketcher.Constraint("Equal", 16, 17),
    Sketcher.Constraint("Equal", 17, 22),
    Sketcher.Constraint("Equal", 22, 23),
    Sketcher.Constraint("Horizontal", 13, 3, 15, 3),
    Sketcher.Constraint("Horizontal", 16, 3, 22, 3),
    Sketcher.Constraint("Horizontal", 11, 2, 18, 2),
    Sketcher.Constraint("Horizontal", 9, 2, 19, 2),
    Sketcher.Constraint("Vertical", 2, 3, 6, 3),
    Sketcher.Constraint("Vertical", 0, 3, 8, 3),
    Sketcher.Constraint("Vertical", 13, 3, 16, 3),
    Sketcher.Constraint("Vertical", 15, 3, 22, 3),
    Sketcher.Constraint("Equal", 5, 9),
    Sketcher.Constraint("Equal", 11, 18),
    Sketcher.Constraint("Diameter", 12, Q("5 mm")),
    Sketcher.Constraint("Radius", 0, Q("10 mm")),
    Sketcher.Constraint("DistanceX", 1, 1, 1, 2, Q("130 mm")),
    Sketcher.Constraint("DistanceX", 3, 2, 3, 1, Q("30 mm")),
    Sketcher.Constraint("DistanceX", -1, 1, 0, 3, Q("10 mm")),
    Sketcher.Constraint("DistanceY", -1, 1, 6, 3, Q("30 mm")),
    Sketcher.Constraint("DistanceX", -1, 1, 13, 3, Q("100 mm")),
    Sketcher.Constraint("DistanceX", -1, 1, 15, 3, Q("50 mm")),
    Sketcher.Constraint("DistanceX", -1, 1, 18, 2, Q("60 mm")),
    Sketcher.Constraint("DistanceY", 4, 2, 4, 1, Q("56.421356 mm")),
    Sketcher.Constraint("DistanceY", -1, 1, 13, 3, Q("54.105339 mm")),
    Sketcher.Constraint("DistanceY", 13, 3, 16, 3, Q("28.210678 mm")),
])
pad6 = body4.newObject("PartDesign::Pad", "Pad005")
pad6.Profile = sketch10
pad6.Length = 5
pad6.Reversed = True
body5 = doc.addObject("PartDesign::Body", "Body004")
body5.AllowCompound = True

# Sketch on an angled plane
sketch11 = body5.newObject("Sketcher::SketchObject", "Sketch010")
sketch11.Placement = App.Placement(App.Vector(0, 3.535534, 3.535534), App.Rotation(App.Vector(-1, 0, 0), App.Vector(0, -0.707106781, 0.707106781), App.Vector(0, 0.707106781, 0.707106781), "ZXY"))
sketch11.addGeometry([
    Part.Circle(App.Vector(-10, 80, 0), App.Vector(0, 0, 1), 2.5),
    Part.Circle(App.Vector(-10, 60, 0), App.Vector(0, 0, 1), 2.5),
    Part.Circle(App.Vector(-10, 40, 0), App.Vector(0, 0, 1), 2.5),
], False)
sketch11.addConstraint([
    Sketcher.Constraint("Equal", 0, 1),
    Sketcher.Constraint("Equal", 1, 2),
    Sketcher.Constraint("Vertical", 0, 3, 1, 3),
    Sketcher.Constraint("Vertical", 1, 3, 2, 3),
    Sketcher.Constraint("Diameter", 0, Q("5 mm")),
    Sketcher.Constraint("DistanceX", 0, 3, -1, 1, Q("10 mm")),
    Sketcher.Constraint("DistanceY", -1, 1, 0, 3, Q("80 mm")),
    Sketcher.Constraint("DistanceY", -1, 1, 1, 3, Q("60 mm")),
    Sketcher.Constraint("DistanceY", -1, 1, 2, 3, Q("40 mm")),
])
pad7 = body5.newObject("PartDesign::Pad", "Pad006")
pad7.Profile = sketch11
pad7.Length = 10
pad7.Reversed = True
doc.recompute()

body6 = doc.addObject("PartDesign::Body", "Body005")
body6.BaseFeature = body5
boolean = body.newObject("PartDesign::Boolean", "Boolean")
boolean.Type = "Cut"
boolean.addObjects([body6])
doc.recompute()

boolean2 = body2.newObject("PartDesign::Boolean", "Boolean001")
boolean2.Type = "Cut"
boolean2.addObjects([body5])
body7 = doc.addObject("PartDesign::Body", "Body006")

# Sketch on XY plane
sketch12 = body7.newObject("Sketcher::SketchObject", "Sketch011")
sketch12.AttachmentSupport = (doc.getObject("XY_Plane006"), [""])
sketch12.MapMode = "FlatFace"
sketch12.AttachmentOffset = App.Placement(App.Vector(0, 0, 5), App.Rotation())
sketch12.addGeometry(Part.Circle(App.Vector(10, -16, 0), App.Vector(0, 0, 1), 6), False)
sketch12.addConstraint([
    Sketcher.Constraint("Diameter", 0, Q("12 mm")),
    Sketcher.Constraint("DistanceX", -1, 1, 0, 3, Q("10.445464 mm")),
    Sketcher.Constraint("DistanceY", 0, 3, -1, 1, Q("15.549984 mm")),
])
pad8 = body7.newObject("PartDesign::Pad", "Pad007")
pad8.Profile = sketch12
pad8.Length = 25
doc.recompute()

body8 = doc.addObject("PartDesign::Body", "Body007")
body8.BaseFeature = body7
boolean3 = body.newObject("PartDesign::Boolean", "Boolean002")
boolean3.Type = "Cut"
boolean3.addObjects([body8])
doc.recompute()

boolean4 = body2.newObject("PartDesign::Boolean", "Boolean003")
boolean4.Type = "Cut"
boolean4.addObjects([body7])
body9 = doc.addObject("PartDesign::Body", "Body008")
doc.recompute()

mirroring = doc.addObject("Part::Mirroring", "Mirroring")
mirroring.Source = body
mirroring.Base = App.Vector(75, 0, 0)
mirroring.Normal = App.Vector(1, 0, 0)
body9.BaseFeature = mirroring
doc.recompute()
body10 = doc.addObject("PartDesign::Body", "Body009")
doc.recompute()

mirroring2 = doc.addObject("Part::Mirroring", "Mirroring001")
mirroring2.Source = body2
mirroring2.Base = App.Vector(75, 0, 0)
mirroring2.Normal = App.Vector(1, 0, 0)
body10.BaseFeature = mirroring2
doc.recompute()
body11 = doc.addObject("PartDesign::Body", "Body010")

# Sketch on an angled plane
sketch13 = body11.newObject("Sketcher::SketchObject", "Sketch012")
sketch13.Placement = App.Placement(App.Vector(0, -70.710678, 70.710678), App.Rotation(App.Vector(1, 0, 0), App.Vector(0, 0.707106781, 0.707106781), App.Vector(0, -0.707106781, 0.707106781), "ZXY"))
sketch13.addGeometry([
    Part.LineSegment(App.Vector(0, -27.5, 0), App.Vector(0, -20, 0)),  # 0
    Part.LineSegment(App.Vector(0, -20, 0), App.Vector(-10, -20, 0)),  # 1
    Part.LineSegment(App.Vector(-10, -20, 0), App.Vector(-10, -40, 0)),  # 2
    Part.LineSegment(App.Vector(-10, -40, 0), App.Vector(0, -40, 0)),  # 3
    Part.LineSegment(App.Vector(0, -40, 0), App.Vector(0, -32.5, 0)),  # 4
    Part.LineSegment(App.Vector(0, -32.5, 0), App.Vector(-2.5, -32.5, 0)),  # 5
    Part.ArcOfCircle(Part.Circle(App.Vector(-2.5, -30, 0), App.Vector(0, 0, 1), 2.5), math.radians(90), math.radians(270)),  # 6
    Part.LineSegment(App.Vector(-2.5, -27.5, 0), App.Vector(0, -27.5, 0)),  # 7
], False)
sketch13.addConstraint([
    Sketcher.Constraint("Coincident", 0, 2, 1, 1),
    Sketcher.Constraint("Coincident", 1, 2, 2, 1),
    Sketcher.Constraint("Coincident", 2, 2, 3, 1),
    Sketcher.Constraint("Coincident", 3, 2, 4, 1),
    Sketcher.Constraint("Coincident", 4, 2, 5, 1),
    Sketcher.Constraint("Tangent", 5, 2, 6, 2),
    Sketcher.Constraint("Tangent", 6, 1, 7, 1),
    Sketcher.Constraint("Coincident", 7, 2, 0, 1),
    Sketcher.Constraint("Vertical", 0),
    Sketcher.Constraint("Horizontal", 1),
    Sketcher.Constraint("Vertical", 2),
    Sketcher.Constraint("Horizontal", 3),
    Sketcher.Constraint("Vertical", 4),
    Sketcher.Constraint("Horizontal", 5),
    Sketcher.Constraint("Horizontal", 7),
    Sketcher.Constraint("PointOnObject", 0, 2, -2),
    Sketcher.Constraint("PointOnObject", 3, 2, -2),
    Sketcher.Constraint("Equal", 0, 4),
    Sketcher.Constraint("Radius", 6, Q("2.5 mm")),
    Sketcher.Constraint("DistanceX", 1, 2, 1, 1, Q("10 mm")),
    Sketcher.Constraint("DistanceY", 2, 2, 2, 1, Q("20 mm")),
    Sketcher.Constraint("DistanceX", 5, 2, 5, 1, Q("2.5 mm")),
    Sketcher.Constraint("DistanceY", 6, 3, -1, 1, Q("30 mm")),
])
pad9 = body11.newObject("PartDesign::Pad", "Pad008")
pad9.Profile = sketch13
pad9.Length = 5.7
mirroring.Visibility = False
mirroring2.Visibility = False

doc.recompute()
